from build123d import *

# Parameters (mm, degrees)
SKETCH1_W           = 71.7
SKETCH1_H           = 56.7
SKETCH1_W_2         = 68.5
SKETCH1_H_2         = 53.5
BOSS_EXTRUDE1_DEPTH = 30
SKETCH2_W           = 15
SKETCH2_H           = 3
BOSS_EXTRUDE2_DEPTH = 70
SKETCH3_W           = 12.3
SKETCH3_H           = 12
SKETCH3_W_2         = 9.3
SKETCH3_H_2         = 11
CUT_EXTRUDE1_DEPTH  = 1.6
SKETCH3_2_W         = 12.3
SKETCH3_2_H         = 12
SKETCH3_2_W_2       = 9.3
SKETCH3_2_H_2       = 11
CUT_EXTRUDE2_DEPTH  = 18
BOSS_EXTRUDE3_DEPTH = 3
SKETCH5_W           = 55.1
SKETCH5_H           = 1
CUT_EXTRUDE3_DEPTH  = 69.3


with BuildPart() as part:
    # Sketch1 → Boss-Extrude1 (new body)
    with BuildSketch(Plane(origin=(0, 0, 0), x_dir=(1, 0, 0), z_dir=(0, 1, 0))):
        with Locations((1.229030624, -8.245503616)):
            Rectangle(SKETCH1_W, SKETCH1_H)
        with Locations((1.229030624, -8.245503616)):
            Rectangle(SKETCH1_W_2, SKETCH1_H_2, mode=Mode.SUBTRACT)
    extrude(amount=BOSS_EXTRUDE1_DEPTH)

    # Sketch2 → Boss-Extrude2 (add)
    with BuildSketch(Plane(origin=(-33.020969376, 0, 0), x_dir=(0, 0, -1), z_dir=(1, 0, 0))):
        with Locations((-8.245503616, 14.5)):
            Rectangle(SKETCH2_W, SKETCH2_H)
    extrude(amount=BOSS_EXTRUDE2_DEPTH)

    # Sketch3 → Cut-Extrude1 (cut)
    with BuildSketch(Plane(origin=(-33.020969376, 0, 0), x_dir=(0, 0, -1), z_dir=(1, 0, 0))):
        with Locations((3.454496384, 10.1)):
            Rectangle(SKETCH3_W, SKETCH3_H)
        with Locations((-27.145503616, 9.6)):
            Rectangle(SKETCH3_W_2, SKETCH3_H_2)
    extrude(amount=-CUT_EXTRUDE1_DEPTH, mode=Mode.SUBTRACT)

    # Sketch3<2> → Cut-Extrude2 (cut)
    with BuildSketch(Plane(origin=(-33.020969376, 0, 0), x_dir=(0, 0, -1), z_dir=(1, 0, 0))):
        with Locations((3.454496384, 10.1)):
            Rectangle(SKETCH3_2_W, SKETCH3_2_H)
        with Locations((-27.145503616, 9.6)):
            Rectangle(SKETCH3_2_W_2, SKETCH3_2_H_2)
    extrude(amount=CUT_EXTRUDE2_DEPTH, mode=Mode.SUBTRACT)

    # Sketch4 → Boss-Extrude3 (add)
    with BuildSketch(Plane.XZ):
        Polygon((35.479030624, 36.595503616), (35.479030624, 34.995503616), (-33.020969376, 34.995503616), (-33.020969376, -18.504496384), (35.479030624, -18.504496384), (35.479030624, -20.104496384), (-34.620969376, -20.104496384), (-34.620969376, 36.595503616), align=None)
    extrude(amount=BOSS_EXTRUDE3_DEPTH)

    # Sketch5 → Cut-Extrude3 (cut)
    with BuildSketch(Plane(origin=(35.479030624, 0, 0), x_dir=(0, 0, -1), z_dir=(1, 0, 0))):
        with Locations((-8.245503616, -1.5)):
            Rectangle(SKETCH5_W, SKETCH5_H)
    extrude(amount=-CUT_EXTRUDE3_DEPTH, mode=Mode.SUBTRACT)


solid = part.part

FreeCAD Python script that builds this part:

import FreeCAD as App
import Part
import Sketcher
from FreeCAD import Vector
Q = App.Units.Quantity


def add_polygon(sketch, points):
    """Adds a closed chain of lines whose ends are joined by coincident constraints."""
    first, n = sketch.GeometryCount, len(points)
    for a, b in zip(points, points[1:] + points[:1]):
        sketch.addGeometry(Part.LineSegment(App.Vector(*a, 0), App.Vector(*b, 0)), False)
    for i in range(n):
        sketch.addConstraint(Sketcher.Constraint("Coincident", first + i, 2, first + (i + 1) % n, 1))

doc = App.newDocument("Part")
body = doc.addObject("PartDesign::Body", "Body")

# Sketch on XZ plane
sketch1 = doc.addObject("Sketcher::SketchObject", "Sketch")
body.addObject(sketch1)
sketch1.AttachmentSupport = (doc.XZ_Plane, [""])
sketch1.MapMode = "FlatFace"
add_polygon(sketch1, [(-35, -20), (-35, 37), (37, 37), (37, -20)])  # lines 0-3
add_polygon(sketch1, [(35, 35), (-33, 35), (-33, -19), (35, -19)])  # lines 4-7
sketch1.addConstraint([
    Sketcher.Constraint("Vertical", 0),
    Sketcher.Constraint("Horizontal", 1),
    Sketcher.Constraint("Vertical", 2),
    Sketcher.Constraint("Horizontal", 3),
    Sketcher.Constraint("Horizontal", 4),
    Sketcher.Constraint("Vertical", 5),
    Sketcher.Constraint("Horizontal", 6),
    Sketcher.Constraint("Vertical", 7),
    Sketcher.Constraint("DistanceX", 1, 1, 1, 2, Q("71.7 mm")),
    Sketcher.Constraint("DistanceX", 4, 2, 4, 1, Q("68.5 mm")),
    Sketcher.Constraint("DistanceY", 0, 1, 0, 2, Q("56.7 mm")),
    Sketcher.Constraint("DistanceY", 5, 2, 5, 1, Q("53.5 mm")),
    Sketcher.Constraint("DistanceX", 0, 2, 4, 2, Q("1.6 mm")),
    Sketcher.Constraint("DistanceY", 4, 2, 0, 2, Q("1.6 mm")),
    Sketcher.Constraint("DistanceX", 0, 2, -1, 1, Q("34.620969 mm")),
    Sketcher.Constraint("DistanceY", -1, 1, 0, 2, Q("36.595504 mm")),
])
pad1 = doc.addObject("PartDesign::Pad", "Pad")
body.addObject(pad1)
pad1.Profile = sketch1
pad1.Length = 30
pad1.Reversed = True

# Sketch on YZ plane
sketch2 = doc.addObject("Sketcher::SketchObject", "Sketch001")
body.addObject(sketch2)
sketch2.AttachmentSupport = (doc.YZ_Plane, [""])
sketch2.MapMode = "FlatFace"
sketch2.AttachmentOffset = App.Placement(Vector(0, 0, -33.020969), App.Rotation())
add_polygon(sketch2, [(16, 15.7), (13, 15.7), (13, 0.7), (16, 0.7)])  # lines 0-3
sketch2.addConstraint([
    Sketcher.Constraint("Horizontal", 0),
    Sketcher.Constraint("Vertical", 1),
    Sketcher.Constraint("Horizontal", 2),
    Sketcher.Constraint("Vertical", 3),
    Sketcher.Constraint("DistanceX", 0, 2, 0, 1, Q("3 mm")),
    Sketcher.Constraint("DistanceY", 1, 2, 1, 1, Q("15 mm")),
    Sketcher.Constraint("DistanceX", -1, 1, 0, 2, Q("13 mm")),
    Sketcher.Constraint("DistanceY", -1, 1, 0, 2, Q("15.745504 mm")),
])
pad2 = doc.addObject("PartDesign::Pad", "Pad001")
body.addObject(pad2)
pad2.Profile = sketch2
pad2.Length = 70

# Sketch on YZ plane
sketch3 = doc.addObject("Sketcher::SketchObject", "Sketch002")
body.addObject(sketch3)
sketch3.AttachmentSupport = (doc.YZ_Plane, [""])
sketch3.MapMode = "FlatFace"
sketch3.AttachmentOffset = App.Placement(Vector(0, 0, -33.020969), App.Rotation())
add_polygon(sketch3, [(16, 3), (4, 3), (4, -10), (16, -10)])  # lines 0-3
add_polygon(sketch3, [(15, 32), (4, 32), (4, 22), (15, 22)])  # lines 4-7
sketch3.addConstraint([
    Sketcher.Constraint("Horizontal", 0),
    Sketcher.Constraint("Vertical", 1),
    Sketcher.Constraint("Horizontal", 2),
    Sketcher.Constraint("Vertical", 3),
    Sketcher.Constraint("Horizontal", 4),
    Sketcher.Constraint("Vertical", 5),
    Sketcher.Constraint("Horizontal", 6),
    Sketcher.Constraint("Vertical", 7),
    Sketcher.Constraint("Vertical", 1, 2, 4, 2),
    Sketcher.Constraint("DistanceX", 0, 2, 0, 1, Q("12 mm")),
    Sketcher.Constraint("DistanceX", 4, 2, 4, 1, Q("11 mm")),
    Sketcher.Constraint("DistanceY", 1, 2, 1, 1, Q("12.3 mm")),
    Sketcher.Constraint("DistanceY", 5, 2, 5, 1, Q("9.3 mm")),
    Sketcher.Constraint("DistanceX", -1, 1, 0, 2, Q("4.1 mm")),
    Sketcher.Constraint("DistanceY", 0, 2, 4, 2, Q("29.1 mm")),
    Sketcher.Constraint("DistanceY", -1, 1, 0, 2, Q("2.695504 mm")),
])
pocket1 = doc.addObject("PartDesign::Pocket", "Pocket")
body.addObject(pocket1)
pocket1.Profile = sketch3
pocket1.Length = 1.6

# Sketch on YZ plane
sketch4 = doc.addObject("Sketcher::SketchObject", "Sketch003")
body.addObject(sketch4)
sketch4.AttachmentSupport = (doc.YZ_Plane, [""])
sketch4.MapMode = "FlatFace"
sketch4.AttachmentOffset = App.Placement(Vector(0, 0, -33.020969), App.Rotation())
add_polygon(sketch4, [(16, 3), (4, 3), (4, -10), (16, -10)])  # lines 0-3
add_polygon(sketch4, [(15, 32), (4, 32), (4, 22), (15, 22)])  # lines 4-7
sketch4.addConstraint([
    Sketcher.Constraint("Horizontal", 0),
    Sketcher.Constraint("Vertical", 1),
    Sketcher.Constraint("Horizontal", 2),
    Sketcher.Constraint("Vertical", 3),
    Sketcher.Constraint("Horizontal", 4),
    Sketcher.Constraint("Vertical", 5),
    Sketcher.Constraint("Horizontal", 6),
    Sketcher.Constraint("Vertical", 7),
    Sketcher.Constraint("Vertical", 1, 2, 4, 2),
    Sketcher.Constraint("DistanceX", 0, 2, 0, 1, Q("12 mm")),
    Sketcher.Constraint("DistanceX", 4, 2, 4, 1, Q("11 mm")),
    Sketcher.Constraint("DistanceY", 1, 2, 1, 1, Q("12.3 mm")),
    Sketcher.Constraint("DistanceY", 5, 2, 5, 1, Q("9.3 mm")),
    Sketcher.Constraint("DistanceX", -1, 1, 0, 2, Q("4.1 mm")),
    Sketcher.Constraint("DistanceY", 0, 2, 4, 2, Q("29.1 mm")),
    Sketcher.Constraint("DistanceY", -1, 1, 0, 2, Q("2.695504 mm")),
])
pocket2 = doc.addObject("PartDesign::Pocket", "Pocket001")
body.addObject(pocket2)
pocket2.Profile = sketch4
pocket2.Length = 18
pocket2.Reversed = True

# Sketch on XZ plane
sketch5 = doc.addObject("Sketcher::SketchObject", "Sketch004")
body.addObject(sketch5)
sketch5.AttachmentSupport = (doc.XZ_Plane, [""])
sketch5.MapMode = "FlatFace"
add_polygon(sketch5, [(35.5, 35), (35.5, 36.6), (-34.6, 36.6), (-34.6, -20.1), (35.5, -20.1), (35.5, -18.5), (-33, -18.5), (-33, 35)])  # lines 0-7
sketch5.addConstraint([
    Sketcher.Constraint("Vertical", 0),
    Sketcher.Constraint("Horizontal", 1),
    Sketcher.Constraint("Vertical", 2),
    Sketcher.Constraint("Horizontal", 3),
    Sketcher.Constraint("Vertical", 4),
    Sketcher.Constraint("Horizontal", 5),
    Sketcher.Constraint("Vertical", 6),
    Sketcher.Constraint("Horizontal", 7),
    Sketcher.Constraint("Vertical", 0, 2, 3, 2),
    Sketcher.Constraint("Equal", 0, 4),
    Sketcher.Constraint("DistanceX", 1, 2, 1, 1, Q("70.1 mm")),
    Sketcher.Constraint("DistanceX", 5, 2, 5, 1, Q("68.5 mm")),
    Sketcher.Constraint("DistanceY", 0, 1, 0, 2, Q("1.6 mm")),
    Sketcher.Constraint("DistanceY", 2, 2, 2, 1, Q("56.7 mm")),
    Sketcher.Constraint("DistanceX", -1, 1, 0, 2, Q("35.479031 mm")),
    Sketcher.Constraint("DistanceY", -1, 1, 0, 2, Q("36.595504 mm")),
])
pad3 = doc.addObject("PartDesign::Pad", "Pad002")
body.addObject(pad3)
pad3.Profile = sketch5
pad3.Length = 3

# Sketch on YZ plane
sketch6 = doc.addObject("Sketcher::SketchObject", "Sketch005")
body.addObject(sketch6)
sketch6.AttachmentSupport = (doc.YZ_Plane, [""])
sketch6.MapMode = "FlatFace"
sketch6.AttachmentOffset = App.Placement(Vector(0, 0, 35.479031), App.Rotation())
add_polygon(sketch6, [(-1, 35.8), (-2, 35.8), (-2, -19.3), (-1, -19.3)])  # lines 0-3
sketch6.addConstraint([
    Sketcher.Constraint("Horizontal", 0),
    Sketcher.Constraint("Vertical", 1),
    Sketcher.Constraint("Horizontal", 2),
    Sketcher.Constraint("Vertical", 3),
    Sketcher.Constraint("DistanceX", 0, 2, 0, 1, Q("1 mm")),
    Sketcher.Constraint("DistanceY", 1, 2, 1, 1, Q("55.1 mm")),
    Sketcher.Constraint("DistanceX", 0, 2, -1, 1, Q("2 mm")),
    Sketcher.Constraint("DistanceY", -1, 1, 0, 2, Q("35.795504 mm")),
])
pocket3 = doc.addObject("PartDesign::Pocket", "Pocket002")
body.addObject(pocket3)
pocket3.Profile = sketch6
pocket3.Length = 69.3

doc.recompute()
